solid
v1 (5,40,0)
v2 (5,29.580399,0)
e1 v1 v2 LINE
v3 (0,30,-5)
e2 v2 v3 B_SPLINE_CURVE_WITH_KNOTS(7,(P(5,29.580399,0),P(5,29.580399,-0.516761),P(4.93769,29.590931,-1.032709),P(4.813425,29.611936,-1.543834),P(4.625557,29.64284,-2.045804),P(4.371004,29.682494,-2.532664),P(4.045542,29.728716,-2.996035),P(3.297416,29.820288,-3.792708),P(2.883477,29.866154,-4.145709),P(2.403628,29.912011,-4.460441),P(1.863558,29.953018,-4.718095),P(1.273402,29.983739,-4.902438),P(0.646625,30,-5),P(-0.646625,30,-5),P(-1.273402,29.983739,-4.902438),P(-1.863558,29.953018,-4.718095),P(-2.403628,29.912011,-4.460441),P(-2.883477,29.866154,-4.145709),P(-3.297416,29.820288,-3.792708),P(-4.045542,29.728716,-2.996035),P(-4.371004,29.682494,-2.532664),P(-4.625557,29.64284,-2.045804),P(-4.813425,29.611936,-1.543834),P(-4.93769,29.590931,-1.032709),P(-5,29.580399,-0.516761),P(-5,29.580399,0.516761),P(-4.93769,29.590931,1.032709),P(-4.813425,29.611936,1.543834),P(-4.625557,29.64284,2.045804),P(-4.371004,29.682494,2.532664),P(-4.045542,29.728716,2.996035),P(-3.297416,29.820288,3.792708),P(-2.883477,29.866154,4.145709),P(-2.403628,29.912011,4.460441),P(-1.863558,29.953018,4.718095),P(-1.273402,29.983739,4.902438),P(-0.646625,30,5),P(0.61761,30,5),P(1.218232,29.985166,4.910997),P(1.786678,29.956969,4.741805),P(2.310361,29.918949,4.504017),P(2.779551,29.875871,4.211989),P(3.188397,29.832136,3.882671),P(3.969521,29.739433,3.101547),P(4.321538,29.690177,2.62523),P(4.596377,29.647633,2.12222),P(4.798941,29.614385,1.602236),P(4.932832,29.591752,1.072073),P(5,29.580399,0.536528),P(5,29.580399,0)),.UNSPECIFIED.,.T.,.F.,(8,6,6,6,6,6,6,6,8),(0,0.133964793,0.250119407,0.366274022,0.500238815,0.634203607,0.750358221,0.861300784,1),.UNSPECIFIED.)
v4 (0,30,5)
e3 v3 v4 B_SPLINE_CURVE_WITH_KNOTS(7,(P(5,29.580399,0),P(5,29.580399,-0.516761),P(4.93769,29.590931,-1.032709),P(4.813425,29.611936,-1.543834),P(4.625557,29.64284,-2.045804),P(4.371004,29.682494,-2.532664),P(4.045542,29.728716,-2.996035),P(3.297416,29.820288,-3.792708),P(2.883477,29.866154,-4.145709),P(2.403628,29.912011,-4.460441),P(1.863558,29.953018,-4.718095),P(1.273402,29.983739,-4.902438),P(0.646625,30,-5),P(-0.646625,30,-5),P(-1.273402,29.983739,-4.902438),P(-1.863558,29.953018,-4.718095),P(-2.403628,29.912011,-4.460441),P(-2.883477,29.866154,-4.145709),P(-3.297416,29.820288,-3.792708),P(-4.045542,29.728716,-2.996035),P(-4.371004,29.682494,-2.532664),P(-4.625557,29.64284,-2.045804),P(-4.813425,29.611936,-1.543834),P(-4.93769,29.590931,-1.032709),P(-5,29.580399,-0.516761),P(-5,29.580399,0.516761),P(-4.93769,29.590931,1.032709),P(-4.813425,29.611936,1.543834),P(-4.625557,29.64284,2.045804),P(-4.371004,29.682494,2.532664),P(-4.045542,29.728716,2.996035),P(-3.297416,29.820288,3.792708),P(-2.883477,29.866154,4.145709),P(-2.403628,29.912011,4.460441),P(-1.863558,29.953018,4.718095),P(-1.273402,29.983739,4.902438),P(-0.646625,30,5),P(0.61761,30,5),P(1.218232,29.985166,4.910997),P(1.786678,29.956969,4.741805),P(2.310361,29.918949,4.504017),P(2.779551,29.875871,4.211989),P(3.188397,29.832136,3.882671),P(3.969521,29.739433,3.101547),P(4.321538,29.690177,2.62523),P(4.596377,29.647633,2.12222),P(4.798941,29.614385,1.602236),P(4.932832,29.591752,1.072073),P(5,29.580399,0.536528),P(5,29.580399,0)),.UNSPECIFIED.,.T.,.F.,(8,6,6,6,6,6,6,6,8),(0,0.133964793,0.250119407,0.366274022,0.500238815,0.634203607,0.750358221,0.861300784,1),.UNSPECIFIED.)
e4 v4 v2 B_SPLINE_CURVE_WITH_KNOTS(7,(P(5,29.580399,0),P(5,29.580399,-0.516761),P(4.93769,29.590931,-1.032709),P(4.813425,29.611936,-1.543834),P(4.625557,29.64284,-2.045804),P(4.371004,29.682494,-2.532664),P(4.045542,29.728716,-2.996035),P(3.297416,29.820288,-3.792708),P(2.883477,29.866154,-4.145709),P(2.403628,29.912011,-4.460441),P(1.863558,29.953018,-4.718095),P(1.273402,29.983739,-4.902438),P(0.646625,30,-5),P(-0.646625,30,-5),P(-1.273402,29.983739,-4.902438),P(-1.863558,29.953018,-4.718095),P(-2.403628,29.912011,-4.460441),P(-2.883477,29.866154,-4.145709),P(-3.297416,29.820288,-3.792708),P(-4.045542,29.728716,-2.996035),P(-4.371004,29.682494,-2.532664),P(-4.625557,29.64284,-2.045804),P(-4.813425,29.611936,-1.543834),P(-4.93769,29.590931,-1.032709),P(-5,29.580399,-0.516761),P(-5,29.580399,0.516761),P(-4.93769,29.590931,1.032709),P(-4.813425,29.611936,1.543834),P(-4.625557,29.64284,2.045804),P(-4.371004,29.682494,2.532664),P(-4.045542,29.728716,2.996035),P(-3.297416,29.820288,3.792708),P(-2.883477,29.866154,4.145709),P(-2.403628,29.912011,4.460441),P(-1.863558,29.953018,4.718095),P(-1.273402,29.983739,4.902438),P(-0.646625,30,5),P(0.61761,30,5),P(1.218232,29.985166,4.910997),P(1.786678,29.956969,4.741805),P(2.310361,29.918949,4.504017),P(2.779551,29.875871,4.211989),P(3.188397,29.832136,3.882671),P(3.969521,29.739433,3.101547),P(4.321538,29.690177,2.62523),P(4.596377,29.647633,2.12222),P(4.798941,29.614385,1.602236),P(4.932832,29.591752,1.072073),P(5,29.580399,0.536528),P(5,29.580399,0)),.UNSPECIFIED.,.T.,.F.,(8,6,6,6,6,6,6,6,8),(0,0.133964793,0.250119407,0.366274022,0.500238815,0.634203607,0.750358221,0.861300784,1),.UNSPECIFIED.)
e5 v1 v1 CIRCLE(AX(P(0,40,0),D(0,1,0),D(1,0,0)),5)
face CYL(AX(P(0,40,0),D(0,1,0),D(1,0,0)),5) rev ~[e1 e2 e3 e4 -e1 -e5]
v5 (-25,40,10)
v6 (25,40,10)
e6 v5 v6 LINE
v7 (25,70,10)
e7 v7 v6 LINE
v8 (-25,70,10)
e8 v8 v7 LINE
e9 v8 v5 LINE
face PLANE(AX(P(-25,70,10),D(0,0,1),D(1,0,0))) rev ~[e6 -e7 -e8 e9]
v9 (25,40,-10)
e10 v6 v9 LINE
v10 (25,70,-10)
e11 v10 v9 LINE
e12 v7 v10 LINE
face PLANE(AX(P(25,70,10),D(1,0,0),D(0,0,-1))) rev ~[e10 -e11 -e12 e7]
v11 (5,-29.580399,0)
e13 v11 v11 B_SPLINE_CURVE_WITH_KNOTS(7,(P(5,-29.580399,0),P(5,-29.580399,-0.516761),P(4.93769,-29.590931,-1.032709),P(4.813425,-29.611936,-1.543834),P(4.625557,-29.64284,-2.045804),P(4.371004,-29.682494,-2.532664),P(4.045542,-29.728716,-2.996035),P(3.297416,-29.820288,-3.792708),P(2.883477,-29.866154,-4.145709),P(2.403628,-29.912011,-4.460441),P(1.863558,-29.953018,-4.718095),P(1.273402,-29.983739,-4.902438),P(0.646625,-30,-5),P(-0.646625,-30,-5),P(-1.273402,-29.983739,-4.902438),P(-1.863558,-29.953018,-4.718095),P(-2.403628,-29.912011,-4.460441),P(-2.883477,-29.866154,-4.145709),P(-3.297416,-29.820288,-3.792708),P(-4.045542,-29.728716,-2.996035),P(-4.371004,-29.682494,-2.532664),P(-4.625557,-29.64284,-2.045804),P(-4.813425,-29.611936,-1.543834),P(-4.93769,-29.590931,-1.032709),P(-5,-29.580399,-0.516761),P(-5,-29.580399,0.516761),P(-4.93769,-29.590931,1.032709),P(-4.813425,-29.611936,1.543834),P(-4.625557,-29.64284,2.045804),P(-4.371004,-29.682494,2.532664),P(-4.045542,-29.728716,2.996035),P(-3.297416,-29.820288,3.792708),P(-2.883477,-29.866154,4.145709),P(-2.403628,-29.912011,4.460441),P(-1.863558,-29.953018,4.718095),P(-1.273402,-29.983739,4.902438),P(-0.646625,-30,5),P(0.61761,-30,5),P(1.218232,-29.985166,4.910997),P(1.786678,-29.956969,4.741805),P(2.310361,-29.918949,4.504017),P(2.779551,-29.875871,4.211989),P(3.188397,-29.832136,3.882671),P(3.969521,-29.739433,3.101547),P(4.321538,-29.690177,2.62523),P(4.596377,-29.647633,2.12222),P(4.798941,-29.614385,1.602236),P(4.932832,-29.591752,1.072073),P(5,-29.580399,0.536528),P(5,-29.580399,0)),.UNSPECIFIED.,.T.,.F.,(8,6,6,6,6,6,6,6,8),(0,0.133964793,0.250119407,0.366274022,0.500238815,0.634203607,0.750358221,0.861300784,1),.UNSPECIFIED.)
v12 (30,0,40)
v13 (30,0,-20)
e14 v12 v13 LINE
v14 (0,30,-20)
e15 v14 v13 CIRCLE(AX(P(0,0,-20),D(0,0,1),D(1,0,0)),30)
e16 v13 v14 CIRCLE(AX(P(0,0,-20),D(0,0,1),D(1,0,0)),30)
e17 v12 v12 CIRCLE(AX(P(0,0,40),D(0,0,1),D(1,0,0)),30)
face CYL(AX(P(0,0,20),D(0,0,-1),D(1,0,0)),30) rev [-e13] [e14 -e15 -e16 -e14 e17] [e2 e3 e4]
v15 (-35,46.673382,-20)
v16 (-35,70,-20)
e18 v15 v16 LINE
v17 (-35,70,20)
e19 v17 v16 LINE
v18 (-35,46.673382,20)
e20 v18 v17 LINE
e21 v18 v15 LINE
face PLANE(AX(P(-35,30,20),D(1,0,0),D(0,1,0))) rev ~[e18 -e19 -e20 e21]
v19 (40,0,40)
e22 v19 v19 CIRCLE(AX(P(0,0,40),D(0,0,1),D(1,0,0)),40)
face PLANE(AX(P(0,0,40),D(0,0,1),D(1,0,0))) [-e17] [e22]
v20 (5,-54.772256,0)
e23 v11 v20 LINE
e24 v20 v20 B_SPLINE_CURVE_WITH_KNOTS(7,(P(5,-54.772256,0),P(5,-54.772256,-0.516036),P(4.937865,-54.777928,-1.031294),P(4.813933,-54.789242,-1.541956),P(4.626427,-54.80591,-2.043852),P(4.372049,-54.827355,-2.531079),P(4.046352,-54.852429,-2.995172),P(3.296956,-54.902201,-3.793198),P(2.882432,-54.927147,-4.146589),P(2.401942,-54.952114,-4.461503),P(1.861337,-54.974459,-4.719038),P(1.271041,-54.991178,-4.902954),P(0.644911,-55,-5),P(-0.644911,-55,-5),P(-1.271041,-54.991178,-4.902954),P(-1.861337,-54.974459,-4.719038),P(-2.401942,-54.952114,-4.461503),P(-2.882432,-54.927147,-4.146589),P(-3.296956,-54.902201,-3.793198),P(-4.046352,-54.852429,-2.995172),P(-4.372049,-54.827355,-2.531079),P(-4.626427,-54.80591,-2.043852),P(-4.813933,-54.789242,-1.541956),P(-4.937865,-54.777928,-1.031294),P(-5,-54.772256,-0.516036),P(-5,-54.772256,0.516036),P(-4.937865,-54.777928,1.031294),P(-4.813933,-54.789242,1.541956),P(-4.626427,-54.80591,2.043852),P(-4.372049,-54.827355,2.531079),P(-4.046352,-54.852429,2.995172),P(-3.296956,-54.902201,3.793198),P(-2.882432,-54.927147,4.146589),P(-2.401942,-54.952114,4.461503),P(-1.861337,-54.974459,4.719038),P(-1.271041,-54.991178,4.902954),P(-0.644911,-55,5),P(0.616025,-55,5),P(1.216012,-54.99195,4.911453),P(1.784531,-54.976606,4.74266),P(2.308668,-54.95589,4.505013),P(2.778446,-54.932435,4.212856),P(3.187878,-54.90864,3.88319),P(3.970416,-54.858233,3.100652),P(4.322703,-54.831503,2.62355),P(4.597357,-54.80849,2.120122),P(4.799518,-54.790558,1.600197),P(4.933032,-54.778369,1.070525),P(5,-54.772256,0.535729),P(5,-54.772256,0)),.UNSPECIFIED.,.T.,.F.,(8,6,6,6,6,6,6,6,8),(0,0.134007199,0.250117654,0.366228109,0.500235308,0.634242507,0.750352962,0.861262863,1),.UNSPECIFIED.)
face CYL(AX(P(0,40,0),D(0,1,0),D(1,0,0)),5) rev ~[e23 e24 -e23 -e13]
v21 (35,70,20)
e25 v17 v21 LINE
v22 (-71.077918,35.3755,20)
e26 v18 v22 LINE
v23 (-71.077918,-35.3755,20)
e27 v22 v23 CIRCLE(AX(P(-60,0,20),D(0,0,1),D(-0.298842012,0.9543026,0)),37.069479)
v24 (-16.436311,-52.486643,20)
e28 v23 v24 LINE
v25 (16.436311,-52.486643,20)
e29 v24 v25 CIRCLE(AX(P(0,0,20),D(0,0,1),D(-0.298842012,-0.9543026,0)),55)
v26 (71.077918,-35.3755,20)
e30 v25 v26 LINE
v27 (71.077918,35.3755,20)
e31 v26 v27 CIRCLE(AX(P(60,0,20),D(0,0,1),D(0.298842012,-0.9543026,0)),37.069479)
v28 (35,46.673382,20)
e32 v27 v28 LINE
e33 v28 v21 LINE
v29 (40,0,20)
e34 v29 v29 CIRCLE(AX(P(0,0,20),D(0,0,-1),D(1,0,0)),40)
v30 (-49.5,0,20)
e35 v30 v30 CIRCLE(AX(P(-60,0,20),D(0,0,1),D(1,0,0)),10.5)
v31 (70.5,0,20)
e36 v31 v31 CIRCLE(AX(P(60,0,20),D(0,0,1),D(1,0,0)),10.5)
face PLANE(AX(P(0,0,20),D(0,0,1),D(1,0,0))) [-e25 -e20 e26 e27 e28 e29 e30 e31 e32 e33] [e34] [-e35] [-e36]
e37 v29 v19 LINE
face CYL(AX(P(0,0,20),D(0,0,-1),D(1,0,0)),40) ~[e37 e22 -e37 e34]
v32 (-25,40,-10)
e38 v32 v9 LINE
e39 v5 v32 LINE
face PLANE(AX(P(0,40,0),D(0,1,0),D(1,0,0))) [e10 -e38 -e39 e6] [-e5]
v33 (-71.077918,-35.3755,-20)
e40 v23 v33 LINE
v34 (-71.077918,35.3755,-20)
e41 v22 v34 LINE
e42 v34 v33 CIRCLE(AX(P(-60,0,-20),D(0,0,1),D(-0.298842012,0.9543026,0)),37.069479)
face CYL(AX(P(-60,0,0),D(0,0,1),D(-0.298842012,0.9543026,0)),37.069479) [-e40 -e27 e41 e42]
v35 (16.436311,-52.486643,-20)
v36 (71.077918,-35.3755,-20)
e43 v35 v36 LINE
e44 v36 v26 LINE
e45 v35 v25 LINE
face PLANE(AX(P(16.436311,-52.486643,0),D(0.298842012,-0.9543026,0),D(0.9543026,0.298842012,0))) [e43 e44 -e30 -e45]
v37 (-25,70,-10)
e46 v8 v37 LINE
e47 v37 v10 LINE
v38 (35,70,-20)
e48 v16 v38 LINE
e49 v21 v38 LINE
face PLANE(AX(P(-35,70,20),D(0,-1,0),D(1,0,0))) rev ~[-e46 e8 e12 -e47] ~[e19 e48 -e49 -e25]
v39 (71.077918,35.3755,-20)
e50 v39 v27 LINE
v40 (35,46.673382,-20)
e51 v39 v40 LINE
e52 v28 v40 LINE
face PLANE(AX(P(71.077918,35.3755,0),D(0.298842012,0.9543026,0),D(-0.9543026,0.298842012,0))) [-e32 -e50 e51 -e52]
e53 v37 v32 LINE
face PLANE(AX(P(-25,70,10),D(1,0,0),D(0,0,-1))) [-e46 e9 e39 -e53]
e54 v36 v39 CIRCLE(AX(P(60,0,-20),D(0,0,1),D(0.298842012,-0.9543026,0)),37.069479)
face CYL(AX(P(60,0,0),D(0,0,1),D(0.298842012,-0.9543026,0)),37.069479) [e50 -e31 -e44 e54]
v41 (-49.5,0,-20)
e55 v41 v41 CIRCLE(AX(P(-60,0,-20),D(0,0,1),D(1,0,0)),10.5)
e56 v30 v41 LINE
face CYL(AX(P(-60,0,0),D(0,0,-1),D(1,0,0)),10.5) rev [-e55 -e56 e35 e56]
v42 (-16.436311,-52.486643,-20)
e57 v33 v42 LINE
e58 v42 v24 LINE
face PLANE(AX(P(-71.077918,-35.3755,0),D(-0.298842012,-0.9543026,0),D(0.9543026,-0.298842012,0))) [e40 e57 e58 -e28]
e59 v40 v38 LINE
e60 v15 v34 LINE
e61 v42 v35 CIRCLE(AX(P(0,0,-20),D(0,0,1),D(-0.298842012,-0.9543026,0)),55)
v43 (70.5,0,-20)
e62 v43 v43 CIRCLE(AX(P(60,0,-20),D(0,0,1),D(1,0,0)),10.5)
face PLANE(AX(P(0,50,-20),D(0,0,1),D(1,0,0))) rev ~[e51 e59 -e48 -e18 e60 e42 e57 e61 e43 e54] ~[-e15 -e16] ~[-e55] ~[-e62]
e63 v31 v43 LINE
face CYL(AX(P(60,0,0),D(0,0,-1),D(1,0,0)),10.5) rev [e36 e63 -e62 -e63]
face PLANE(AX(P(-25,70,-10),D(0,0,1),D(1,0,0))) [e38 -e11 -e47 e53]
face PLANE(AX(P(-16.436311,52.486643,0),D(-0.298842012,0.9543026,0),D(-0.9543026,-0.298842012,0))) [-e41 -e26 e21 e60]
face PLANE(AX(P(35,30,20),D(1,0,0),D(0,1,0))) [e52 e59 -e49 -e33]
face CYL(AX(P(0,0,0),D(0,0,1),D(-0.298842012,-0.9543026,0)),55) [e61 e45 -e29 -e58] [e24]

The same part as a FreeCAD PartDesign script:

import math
import FreeCAD as App
import Part
import Sketcher

doc = App.newDocument("Part")
body = doc.addObject("PartDesign::Body", "Body")

sketch1 = body.newObject("Sketcher::SketchObject", "Sketch")
sketch1.AttachmentSupport = (doc.getObject("XY_Plane"), [""])
sketch1.MapMode = "FlatFace"
sketch1.addGeometry([
    Part.LineSegment(App.Vector(-71, -35, 0), App.Vector(-16, -52, 0)),
    Part.ArcOfCircle(Part.Circle(App.Vector(0, 0, 0), App.Vector(0, 0, 1), 55), math.radians(-107), math.radians(-73)),
    Part.LineSegment(App.Vector(16, -52, 0), App.Vector(71, -35, 0)),
    Part.ArcOfCircle(Part.Circle(App.Vector(60, 0, 0), App.Vector(0, 0, 1), 37), math.radians(-73), math.radians(73)),
    Part.LineSegment(App.Vector(71, 35, 0), App.Vector(16, 52, 0)),
    Part.ArcOfCircle(Part.Circle(App.Vector(0, 0, 0), App.Vector(0, 0, 1), 55), math.radians(73), math.radians(107)),
    Part.LineSegment(App.Vector(-16, 52, 0), App.Vector(-71, 35, 0)),
    Part.ArcOfCircle(Part.Circle(App.Vector(-60, 0, 0), App.Vector(0, 0, 1), 37), math.radians(107), math.radians(253)),
    Part.Circle(App.Vector(-60, 0, 0), App.Vector(0, 0, 1), 10),
    Part.Circle(App.Vector(0, 0, 0), App.Vector(0, 0, 1), 30),
    Part.Circle(App.Vector(60, 0, 0), App.Vector(0, 0, 1), 10),
], False)
sketch1.addConstraint([
    Sketcher.Constraint("Tangent", 0, 2, 1, 1),
    Sketcher.Constraint("Tangent", 1, 2, 2, 1),
    Sketcher.Constraint("Tangent", 2, 2, 3, 1),
    Sketcher.Constraint("Tangent", 3, 2, 4, 1),
    Sketcher.Constraint("Tangent", 4, 2, 5, 1),
    Sketcher.Constraint("Tangent", 5, 2, 6, 1),
    Sketcher.Constraint("Tangent", 6, 2, 7, 1),
    Sketcher.Constraint("Tangent", 7, 2, 0, 1),
    Sketcher.Constraint("Coincident", 1, 3, -1, 1),
    Sketcher.Constraint("Coincident", 5, 3, -1, 1),
    Sketcher.Constraint("Coincident", 9, 3, -1, 1),
    Sketcher.Constraint("Coincident", 8, 3, 7, 3),
    Sketcher.Constraint("Coincident", 10, 3, 3, 3),
    Sketcher.Constraint("Equal", 1, 5),
    Sketcher.Constraint("Equal", 3, 7),
    Sketcher.Constraint("Equal", 8, 10),
    Sketcher.Constraint("Symmetric", 3, 3, 7, 3, -1, 1),
    Sketcher.Constraint("PointOnObject", 3, 3, -1),
    Sketcher.Constraint("Diameter", 8, 21.0),
    Sketcher.Constraint("Diameter", 9, 60.0),
    Sketcher.Constraint("Radius", 1, 55.0),
    Sketcher.Constraint("DistanceX", -1, 1, 3, 3, 60.0),
    Sketcher.Constraint("Radius", 3, 37.069479),
])
pad1 = body.newObject("PartDesign::Pad", "Pad")
pad1.Profile = sketch1
pad1.Length = 40
pad1.Midplane = True

sketch2 = body.newObject("Sketcher::SketchObject", "Sketch001")
sketch2.AttachmentSupport = (doc.getObject("XY_Plane"), [""])
sketch2.MapMode = "FlatFace"
sketch2.AttachmentOffset = App.Placement(App.Vector(0, 0, 20), App.Rotation())
sketch2.addGeometry([
    Part.Circle(App.Vector(0, 0, 0), App.Vector(0, 0, 1), 40),
    Part.Circle(App.Vector(0, 0, 0), App.Vector(0, 0, 1), 30),
], False)
sketch2.addConstraint([
    Sketcher.Constraint("Coincident", 0, 3, -1, 1),
    Sketcher.Constraint("Coincident", 1, 3, -1, 1),
    Sketcher.Constraint("Diameter", 0, 80.0),
    Sketcher.Constraint("Diameter", 1, 60.0),
])
pad2 = body.newObject("PartDesign::Pad", "Pad001")
pad2.Profile = sketch2
pad2.Length = 20

sketch3 = body.newObject("Sketcher::SketchObject", "Sketch002")
sketch3.AttachmentSupport = (doc.getObject("XY_Plane"), [""])
sketch3.MapMode = "FlatFace"
sketch3.AttachmentOffset = App.Placement(App.Vector(0, 0, 20), App.Rotation())
sketch3.addGeometry([
    Part.LineSegment(App.Vector(-35, 70, 0), App.Vector(-35, 30, 0)),
    Part.LineSegment(App.Vector(-35, 30, 0), App.Vector(35, 30, 0)),
    Part.LineSegment(App.Vector(35, 30, 0), App.Vector(35, 70, 0)),
    Part.LineSegment(App.Vector(35, 70, 0), App.Vector(-35, 70, 0)),
], False)
sketch3.addConstraint([
    Sketcher.Constraint("Coincident", 0, 2, 1, 1),
    Sketcher.Constraint("Coincident", 1, 2, 2, 1),
    Sketcher.Constraint("Coincident", 2, 2, 3, 1),
    Sketcher.Constraint("Coincident", 3, 2, 0, 1),
    Sketcher.Constraint("Vertical", 0),
    Sketcher.Constraint("Horizontal", 1),
    Sketcher.Constraint("Vertical", 2),
    Sketcher.Constraint("Horizontal", 3),
    Sketcher.Constraint("DistanceX", 1, 1, 1, 2, 70.0),
    Sketcher.Constraint("DistanceY", 0, 2, 0, 1, 40.0),
    Sketcher.Constraint("DistanceX", 0, 2, -1, 1, 35.0),
    Sketcher.Constraint("DistanceY", -1, 1, 0, 2, 30.0),
])
pad3 = body.newObject("PartDesign::Pad", "Pad002")
pad3.Profile = sketch3
pad3.Length = 40
pad3.Reversed = True

sketch4 = body.newObject("Sketcher::SketchObject", "Sketch003")
sketch4.AttachmentSupport = (doc.getObject("XZ_Plane"), [""])
sketch4.MapMode = "FlatFace"
sketch4.AttachmentOffset = App.Placement(App.Vector(0, 0, -70), App.Rotation())
sketch4.addGeometry([
    Part.LineSegment(App.Vector(-25, -10, 0), App.Vector(-25, 10, 0)),
    Part.LineSegment(App.Vector(-25, 10, 0), App.Vector(25, 10, 0)),
    Part.LineSegment(App.Vector(25, 10, 0), App.Vector(25, -10, 0)),
    Part.LineSegment(App.Vector(25, -10, 0), App.Vector(-25, -10, 0)),
], False)
sketch4.addConstraint([
    Sketcher.Constraint("Coincident", 0, 2, 1, 1),
    Sketcher.Constraint("Coincident", 1, 2, 2, 1),
    Sketcher.Constraint("Coincident", 2, 2, 3, 1),
    Sketcher.Constraint("Coincident", 3, 2, 0, 1),
    Sketcher.Constraint("Vertical", 0),
    Sketcher.Constraint("Horizontal", 1),
    Sketcher.Constraint("Vertical", 2),
    Sketcher.Constraint("Horizontal", 3),
    Sketcher.Constraint("Symmetric", 0, 2, 2, 2, -1, 1),
    Sketcher.Constraint("DistanceX", 1, 1, 1, 2, 50.0),
    Sketcher.Constraint("DistanceY", 0, 1, 0, 2, 20.0),
])
pocket1 = body.newObject("PartDesign::Pocket", "Pocket")
pocket1.Profile = sketch4
pocket1.Length = 30
pocket1.Reversed = True

sketch5 = body.newObject("Sketcher::SketchObject", "Sketch004")
sketch5.AttachmentSupport = (doc.getObject("XZ_Plane"), [""])
sketch5.MapMode = "FlatFace"
sketch5.AttachmentOffset = App.Placement(App.Vector(0, 0, -40), App.Rotation())
sketch5.addGeometry(Part.Circle(App.Vector(0, 0, 0), App.Vector(0, 0, 1), 5), False)
sketch5.addConstraint([
    Sketcher.Constraint("Coincident", 0, 3, -1, 1),
    Sketcher.Constraint("Diameter", 0, 10.0),
])
pocket2 = body.newObject("PartDesign::Pocket", "Pocket001")
pocket2.Profile = sketch5
pocket2.Type = "ThroughAll"
pocket2.Reversed = True

doc.recompute()
